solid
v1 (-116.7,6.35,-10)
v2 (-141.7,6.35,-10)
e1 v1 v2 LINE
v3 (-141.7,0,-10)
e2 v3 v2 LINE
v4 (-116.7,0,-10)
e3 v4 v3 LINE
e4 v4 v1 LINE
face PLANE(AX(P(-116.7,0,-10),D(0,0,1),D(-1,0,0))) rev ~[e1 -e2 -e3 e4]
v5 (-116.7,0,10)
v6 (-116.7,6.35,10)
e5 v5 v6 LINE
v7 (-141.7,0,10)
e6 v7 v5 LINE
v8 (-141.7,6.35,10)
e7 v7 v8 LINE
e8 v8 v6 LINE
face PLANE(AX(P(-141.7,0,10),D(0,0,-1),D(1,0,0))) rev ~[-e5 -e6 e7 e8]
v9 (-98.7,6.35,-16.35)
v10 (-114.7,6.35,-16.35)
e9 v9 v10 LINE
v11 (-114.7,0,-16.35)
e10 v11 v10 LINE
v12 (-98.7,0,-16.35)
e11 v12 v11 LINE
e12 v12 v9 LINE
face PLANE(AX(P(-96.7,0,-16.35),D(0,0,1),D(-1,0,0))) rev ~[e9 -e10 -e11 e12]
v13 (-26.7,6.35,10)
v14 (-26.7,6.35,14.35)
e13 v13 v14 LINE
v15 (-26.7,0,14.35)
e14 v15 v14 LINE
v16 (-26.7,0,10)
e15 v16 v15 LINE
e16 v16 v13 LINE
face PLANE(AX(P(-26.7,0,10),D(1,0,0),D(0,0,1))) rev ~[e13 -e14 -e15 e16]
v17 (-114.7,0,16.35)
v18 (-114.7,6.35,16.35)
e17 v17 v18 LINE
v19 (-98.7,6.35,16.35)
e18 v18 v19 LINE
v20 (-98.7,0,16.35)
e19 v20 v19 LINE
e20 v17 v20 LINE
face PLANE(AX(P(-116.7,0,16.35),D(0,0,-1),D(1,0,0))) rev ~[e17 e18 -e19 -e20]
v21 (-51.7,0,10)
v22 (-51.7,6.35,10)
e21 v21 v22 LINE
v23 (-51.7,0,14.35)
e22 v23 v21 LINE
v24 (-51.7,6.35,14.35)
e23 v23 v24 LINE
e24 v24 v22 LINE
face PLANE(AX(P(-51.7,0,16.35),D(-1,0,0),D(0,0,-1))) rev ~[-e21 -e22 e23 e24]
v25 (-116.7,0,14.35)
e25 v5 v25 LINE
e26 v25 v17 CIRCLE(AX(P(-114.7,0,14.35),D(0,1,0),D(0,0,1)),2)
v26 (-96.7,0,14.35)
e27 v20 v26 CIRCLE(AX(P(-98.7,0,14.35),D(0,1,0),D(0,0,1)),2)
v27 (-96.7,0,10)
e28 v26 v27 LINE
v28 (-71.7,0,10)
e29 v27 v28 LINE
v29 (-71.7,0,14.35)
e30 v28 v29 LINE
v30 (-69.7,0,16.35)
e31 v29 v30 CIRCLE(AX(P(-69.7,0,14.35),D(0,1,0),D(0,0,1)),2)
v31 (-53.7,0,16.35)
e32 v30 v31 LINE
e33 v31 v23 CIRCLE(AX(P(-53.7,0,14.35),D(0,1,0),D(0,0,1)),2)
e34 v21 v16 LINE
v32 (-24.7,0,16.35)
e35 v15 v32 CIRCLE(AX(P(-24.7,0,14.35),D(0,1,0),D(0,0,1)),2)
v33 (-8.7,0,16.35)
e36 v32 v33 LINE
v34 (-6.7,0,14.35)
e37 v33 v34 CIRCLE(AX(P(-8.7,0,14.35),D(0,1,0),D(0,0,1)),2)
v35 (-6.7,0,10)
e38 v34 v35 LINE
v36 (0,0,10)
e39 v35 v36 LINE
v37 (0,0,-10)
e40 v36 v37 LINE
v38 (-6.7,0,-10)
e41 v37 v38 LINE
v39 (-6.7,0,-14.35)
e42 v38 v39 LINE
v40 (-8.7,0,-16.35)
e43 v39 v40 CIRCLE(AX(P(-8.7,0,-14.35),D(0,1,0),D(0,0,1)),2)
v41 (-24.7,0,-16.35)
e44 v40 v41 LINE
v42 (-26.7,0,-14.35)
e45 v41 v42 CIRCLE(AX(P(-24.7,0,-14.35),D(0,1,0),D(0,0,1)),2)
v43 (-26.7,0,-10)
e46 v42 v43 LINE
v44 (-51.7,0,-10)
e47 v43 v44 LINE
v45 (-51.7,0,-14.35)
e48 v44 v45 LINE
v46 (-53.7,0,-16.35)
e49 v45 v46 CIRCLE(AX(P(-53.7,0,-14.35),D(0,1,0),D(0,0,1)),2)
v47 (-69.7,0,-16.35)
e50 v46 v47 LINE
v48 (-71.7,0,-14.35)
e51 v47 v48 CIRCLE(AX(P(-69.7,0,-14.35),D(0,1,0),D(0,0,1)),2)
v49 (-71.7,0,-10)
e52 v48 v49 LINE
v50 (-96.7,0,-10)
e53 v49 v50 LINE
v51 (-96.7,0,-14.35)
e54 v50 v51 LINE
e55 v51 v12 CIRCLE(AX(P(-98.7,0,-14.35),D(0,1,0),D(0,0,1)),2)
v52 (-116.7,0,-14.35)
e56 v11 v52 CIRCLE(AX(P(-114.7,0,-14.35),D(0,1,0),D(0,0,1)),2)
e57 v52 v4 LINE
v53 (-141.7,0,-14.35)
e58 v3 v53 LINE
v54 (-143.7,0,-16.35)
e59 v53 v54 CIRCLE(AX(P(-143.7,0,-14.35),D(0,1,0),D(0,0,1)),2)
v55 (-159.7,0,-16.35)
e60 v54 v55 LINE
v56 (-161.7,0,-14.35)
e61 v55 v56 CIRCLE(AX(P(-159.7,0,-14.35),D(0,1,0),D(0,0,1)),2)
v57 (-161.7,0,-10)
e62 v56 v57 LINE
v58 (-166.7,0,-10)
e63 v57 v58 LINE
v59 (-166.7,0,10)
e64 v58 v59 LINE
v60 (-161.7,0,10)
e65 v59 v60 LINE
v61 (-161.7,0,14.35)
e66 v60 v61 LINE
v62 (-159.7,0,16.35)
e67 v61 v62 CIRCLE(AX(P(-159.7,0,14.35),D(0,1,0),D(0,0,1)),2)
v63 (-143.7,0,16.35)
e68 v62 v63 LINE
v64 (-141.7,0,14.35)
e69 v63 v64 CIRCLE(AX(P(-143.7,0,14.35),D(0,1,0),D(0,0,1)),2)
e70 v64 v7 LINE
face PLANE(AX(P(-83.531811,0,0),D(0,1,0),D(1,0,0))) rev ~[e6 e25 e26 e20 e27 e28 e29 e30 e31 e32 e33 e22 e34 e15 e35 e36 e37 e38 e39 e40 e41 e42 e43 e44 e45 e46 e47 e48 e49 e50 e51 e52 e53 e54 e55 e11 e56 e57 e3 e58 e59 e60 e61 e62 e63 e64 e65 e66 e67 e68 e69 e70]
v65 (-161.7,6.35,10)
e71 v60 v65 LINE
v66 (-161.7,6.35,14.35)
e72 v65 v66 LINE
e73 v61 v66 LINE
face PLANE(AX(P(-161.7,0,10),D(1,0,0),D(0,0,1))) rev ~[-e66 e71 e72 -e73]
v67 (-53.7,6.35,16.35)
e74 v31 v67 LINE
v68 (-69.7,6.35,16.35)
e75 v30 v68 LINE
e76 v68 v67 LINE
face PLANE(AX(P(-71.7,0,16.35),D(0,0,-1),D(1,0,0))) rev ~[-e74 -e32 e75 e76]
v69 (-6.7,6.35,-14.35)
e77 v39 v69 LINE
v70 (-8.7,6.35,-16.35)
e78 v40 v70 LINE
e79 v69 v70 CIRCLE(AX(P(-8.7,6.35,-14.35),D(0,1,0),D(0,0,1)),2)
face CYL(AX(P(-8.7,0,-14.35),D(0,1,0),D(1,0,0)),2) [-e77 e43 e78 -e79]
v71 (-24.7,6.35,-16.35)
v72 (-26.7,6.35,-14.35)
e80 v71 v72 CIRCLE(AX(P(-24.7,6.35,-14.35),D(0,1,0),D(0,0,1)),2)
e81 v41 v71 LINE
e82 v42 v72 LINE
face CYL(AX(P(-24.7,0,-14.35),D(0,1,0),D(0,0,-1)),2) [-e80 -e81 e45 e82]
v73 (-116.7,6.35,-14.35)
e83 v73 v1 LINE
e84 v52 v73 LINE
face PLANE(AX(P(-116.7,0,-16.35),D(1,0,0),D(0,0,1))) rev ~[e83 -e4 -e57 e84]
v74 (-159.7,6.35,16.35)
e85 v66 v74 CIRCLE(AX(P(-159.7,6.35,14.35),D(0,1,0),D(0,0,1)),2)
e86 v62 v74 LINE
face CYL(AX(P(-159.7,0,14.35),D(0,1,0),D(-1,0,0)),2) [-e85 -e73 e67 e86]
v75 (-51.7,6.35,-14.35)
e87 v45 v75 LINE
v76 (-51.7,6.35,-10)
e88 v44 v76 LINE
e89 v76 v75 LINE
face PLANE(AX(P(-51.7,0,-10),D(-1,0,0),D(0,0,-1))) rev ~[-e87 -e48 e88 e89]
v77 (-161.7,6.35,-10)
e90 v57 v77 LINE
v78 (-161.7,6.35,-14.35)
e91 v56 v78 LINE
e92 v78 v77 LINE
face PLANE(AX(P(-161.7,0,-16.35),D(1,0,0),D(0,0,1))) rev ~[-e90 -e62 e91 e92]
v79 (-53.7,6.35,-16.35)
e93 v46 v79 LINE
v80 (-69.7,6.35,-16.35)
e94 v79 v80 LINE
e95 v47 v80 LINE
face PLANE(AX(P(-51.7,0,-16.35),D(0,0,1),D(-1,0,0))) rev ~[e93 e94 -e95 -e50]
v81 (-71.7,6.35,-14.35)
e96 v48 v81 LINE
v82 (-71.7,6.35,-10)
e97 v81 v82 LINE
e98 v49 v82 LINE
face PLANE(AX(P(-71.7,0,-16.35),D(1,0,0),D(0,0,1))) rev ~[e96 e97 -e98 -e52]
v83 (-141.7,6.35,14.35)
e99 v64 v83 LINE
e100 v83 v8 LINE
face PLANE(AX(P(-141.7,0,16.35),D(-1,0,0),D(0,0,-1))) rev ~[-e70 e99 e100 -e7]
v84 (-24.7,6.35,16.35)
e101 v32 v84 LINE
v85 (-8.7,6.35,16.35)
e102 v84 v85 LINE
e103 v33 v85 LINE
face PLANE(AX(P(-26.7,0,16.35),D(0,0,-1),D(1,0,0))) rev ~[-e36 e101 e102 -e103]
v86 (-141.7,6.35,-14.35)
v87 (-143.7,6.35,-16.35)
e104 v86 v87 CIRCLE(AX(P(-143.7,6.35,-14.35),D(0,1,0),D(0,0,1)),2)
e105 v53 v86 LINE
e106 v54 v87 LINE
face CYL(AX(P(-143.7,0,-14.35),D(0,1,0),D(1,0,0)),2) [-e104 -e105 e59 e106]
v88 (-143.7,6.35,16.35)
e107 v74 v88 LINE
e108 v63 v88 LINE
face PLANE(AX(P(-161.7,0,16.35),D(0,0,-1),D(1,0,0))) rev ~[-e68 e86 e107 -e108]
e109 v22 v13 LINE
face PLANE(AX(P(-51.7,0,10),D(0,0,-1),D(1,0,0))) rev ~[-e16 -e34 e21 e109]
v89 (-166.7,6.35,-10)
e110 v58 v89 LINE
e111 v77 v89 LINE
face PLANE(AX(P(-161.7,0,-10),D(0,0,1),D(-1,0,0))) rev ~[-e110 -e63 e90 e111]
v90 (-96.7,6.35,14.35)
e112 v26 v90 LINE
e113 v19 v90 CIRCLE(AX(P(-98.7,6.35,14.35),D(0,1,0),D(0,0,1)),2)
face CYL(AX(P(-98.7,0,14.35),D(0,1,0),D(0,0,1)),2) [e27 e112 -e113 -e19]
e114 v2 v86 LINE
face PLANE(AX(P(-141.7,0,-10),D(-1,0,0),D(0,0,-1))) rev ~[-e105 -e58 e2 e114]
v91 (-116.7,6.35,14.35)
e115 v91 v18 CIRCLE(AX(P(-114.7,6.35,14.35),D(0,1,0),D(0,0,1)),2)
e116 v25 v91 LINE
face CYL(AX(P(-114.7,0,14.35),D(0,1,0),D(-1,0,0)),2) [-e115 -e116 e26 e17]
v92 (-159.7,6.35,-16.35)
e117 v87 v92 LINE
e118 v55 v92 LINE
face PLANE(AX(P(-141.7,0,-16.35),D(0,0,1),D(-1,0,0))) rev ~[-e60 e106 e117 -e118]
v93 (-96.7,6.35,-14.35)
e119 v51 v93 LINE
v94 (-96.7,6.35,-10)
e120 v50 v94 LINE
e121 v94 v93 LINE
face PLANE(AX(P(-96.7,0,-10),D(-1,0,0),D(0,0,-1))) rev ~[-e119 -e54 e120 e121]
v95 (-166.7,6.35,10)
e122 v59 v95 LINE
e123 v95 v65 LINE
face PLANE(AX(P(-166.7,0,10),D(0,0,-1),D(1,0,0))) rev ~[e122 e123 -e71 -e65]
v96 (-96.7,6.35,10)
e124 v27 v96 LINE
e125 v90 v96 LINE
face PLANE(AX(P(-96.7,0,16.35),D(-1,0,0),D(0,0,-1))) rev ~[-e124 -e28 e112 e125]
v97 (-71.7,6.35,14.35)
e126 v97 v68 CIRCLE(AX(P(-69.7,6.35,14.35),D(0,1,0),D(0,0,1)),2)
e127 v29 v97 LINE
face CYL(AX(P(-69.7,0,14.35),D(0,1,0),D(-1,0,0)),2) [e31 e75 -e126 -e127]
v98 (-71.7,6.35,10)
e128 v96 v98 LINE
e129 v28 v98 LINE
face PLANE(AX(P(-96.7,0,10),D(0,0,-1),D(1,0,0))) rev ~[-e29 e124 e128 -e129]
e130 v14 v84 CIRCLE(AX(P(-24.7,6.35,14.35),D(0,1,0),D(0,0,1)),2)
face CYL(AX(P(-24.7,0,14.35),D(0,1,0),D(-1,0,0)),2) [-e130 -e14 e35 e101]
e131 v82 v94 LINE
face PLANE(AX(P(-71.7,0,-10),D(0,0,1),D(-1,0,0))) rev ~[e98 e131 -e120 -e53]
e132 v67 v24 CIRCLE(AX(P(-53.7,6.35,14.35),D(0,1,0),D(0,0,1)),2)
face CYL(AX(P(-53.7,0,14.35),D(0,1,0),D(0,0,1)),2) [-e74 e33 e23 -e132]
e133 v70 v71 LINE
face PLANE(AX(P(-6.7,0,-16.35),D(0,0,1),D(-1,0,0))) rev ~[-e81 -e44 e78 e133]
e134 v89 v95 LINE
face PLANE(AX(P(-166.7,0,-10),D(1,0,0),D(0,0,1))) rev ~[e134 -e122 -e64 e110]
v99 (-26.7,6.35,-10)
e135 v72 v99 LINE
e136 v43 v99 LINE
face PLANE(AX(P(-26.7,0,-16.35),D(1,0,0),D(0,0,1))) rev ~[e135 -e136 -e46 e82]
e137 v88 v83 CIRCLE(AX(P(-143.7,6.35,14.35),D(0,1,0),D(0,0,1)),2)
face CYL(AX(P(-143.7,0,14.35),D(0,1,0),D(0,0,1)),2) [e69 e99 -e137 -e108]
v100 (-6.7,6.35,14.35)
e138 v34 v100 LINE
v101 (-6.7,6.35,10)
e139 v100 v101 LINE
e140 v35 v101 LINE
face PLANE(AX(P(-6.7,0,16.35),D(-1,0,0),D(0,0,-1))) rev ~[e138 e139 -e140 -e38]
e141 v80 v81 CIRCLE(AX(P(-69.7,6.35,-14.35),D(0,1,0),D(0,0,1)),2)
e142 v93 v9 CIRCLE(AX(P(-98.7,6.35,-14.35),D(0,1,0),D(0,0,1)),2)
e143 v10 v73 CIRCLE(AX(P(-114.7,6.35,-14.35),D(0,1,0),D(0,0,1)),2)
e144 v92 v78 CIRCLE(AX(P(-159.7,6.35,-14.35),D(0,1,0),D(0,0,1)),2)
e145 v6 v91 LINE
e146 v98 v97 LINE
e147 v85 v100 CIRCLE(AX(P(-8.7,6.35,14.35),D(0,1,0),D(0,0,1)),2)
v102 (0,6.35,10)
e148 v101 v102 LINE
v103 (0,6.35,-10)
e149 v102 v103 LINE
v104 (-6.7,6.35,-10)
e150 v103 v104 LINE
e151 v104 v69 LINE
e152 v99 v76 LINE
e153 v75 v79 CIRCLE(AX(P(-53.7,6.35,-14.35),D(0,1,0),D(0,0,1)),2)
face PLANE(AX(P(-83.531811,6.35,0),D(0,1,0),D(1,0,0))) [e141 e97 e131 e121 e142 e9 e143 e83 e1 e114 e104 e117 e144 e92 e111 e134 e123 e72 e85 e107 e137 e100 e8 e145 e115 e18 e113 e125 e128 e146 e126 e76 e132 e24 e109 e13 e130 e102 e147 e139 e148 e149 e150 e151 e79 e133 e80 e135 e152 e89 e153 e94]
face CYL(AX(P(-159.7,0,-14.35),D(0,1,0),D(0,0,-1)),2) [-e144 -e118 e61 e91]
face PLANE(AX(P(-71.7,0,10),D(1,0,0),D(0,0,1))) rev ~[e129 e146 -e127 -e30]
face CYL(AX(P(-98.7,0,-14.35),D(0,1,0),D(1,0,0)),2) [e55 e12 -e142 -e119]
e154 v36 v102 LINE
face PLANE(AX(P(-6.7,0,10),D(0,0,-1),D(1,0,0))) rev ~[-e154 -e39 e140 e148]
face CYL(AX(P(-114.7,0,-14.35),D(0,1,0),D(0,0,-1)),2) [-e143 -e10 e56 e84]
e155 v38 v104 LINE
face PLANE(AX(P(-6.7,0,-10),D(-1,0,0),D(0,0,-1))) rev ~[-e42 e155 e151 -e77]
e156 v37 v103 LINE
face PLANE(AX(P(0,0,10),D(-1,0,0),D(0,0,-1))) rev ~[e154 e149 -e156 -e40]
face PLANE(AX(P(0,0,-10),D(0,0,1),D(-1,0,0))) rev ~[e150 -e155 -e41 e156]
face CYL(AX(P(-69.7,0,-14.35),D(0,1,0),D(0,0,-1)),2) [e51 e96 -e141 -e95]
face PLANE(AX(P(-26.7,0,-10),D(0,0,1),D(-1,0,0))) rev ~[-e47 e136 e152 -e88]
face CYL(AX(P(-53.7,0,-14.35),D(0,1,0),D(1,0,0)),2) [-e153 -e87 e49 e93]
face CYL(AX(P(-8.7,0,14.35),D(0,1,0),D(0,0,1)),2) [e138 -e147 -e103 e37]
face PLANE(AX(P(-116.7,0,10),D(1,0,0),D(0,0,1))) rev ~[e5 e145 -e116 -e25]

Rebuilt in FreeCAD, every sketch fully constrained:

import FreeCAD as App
import Part
import Sketcher

V = App.Vector


def edges_at(feature, points):
    """Names of the edges that pass closest to the given points."""
    edges = feature.Shape.Edges
    near = lambda p: min(range(len(edges)), key=lambda i: edges[i].distToShape(Part.Vertex(*p))[0])
    return sorted({f"Edge{near(p) + 1}" for p in points})

doc = App.newDocument("Part")
body = doc.addObject("PartDesign::Body", "Body")

# Sketch on XZ plane
sketch1 = body.newObject("Sketcher::SketchObject", "Sketch")
sketch1.AttachmentSupport = (doc.getObject("XZ_Plane"), [""])
sketch1.MapMode = "FlatFace"
sketch1.addGeometry(Part.LineSegment(V(0, -10, 0), V(-7, -10, 0)), False)
sketch1.addGeometry(Part.LineSegment(V(-7, -10, 0), V(-7, -16, 0)), False)
sketch1.addGeometry(Part.LineSegment(V(-7, -16, 0), V(-27, -16, 0)), False)
sketch1.addGeometry(Part.LineSegment(V(-27, -16, 0), V(-27, -10, 0)), False)
sketch1.addGeometry(Part.LineSegment(V(-27, -10, 0), V(-52, -10, 0)), False)
sketch1.addGeometry(Part.LineSegment(V(-52, -10, 0), V(-52, -16, 0)), False)
sketch1.addGeometry(Part.LineSegment(V(-52, -16, 0), V(-72, -16, 0)), False)
sketch1.addGeometry(Part.LineSegment(V(-72, -16, 0), V(-72, -10, 0)), False)
sketch1.addGeometry(Part.LineSegment(V(-72, -10, 0), V(-97, -10, 0)), False)
sketch1.addGeometry(Part.LineSegment(V(-97, -10, 0), V(-97, -16, 0)), False)
sketch1.addGeometry(Part.LineSegment(V(-97, -16, 0), V(-117, -16, 0)), False)
sketch1.addGeometry(Part.LineSegment(V(-117, -16, 0), V(-117, -10, 0)), False)
sketch1.addGeometry(Part.LineSegment(V(-117, -10, 0), V(-142, -10, 0)), False)
sketch1.addGeometry(Part.LineSegment(V(-142, -10, 0), V(-142, -16, 0)), False)
sketch1.addGeometry(Part.LineSegment(V(-142, -16, 0), V(-162, -16, 0)), False)
sketch1.addGeometry(Part.LineSegment(V(-162, -16, 0), V(-162, -10, 0)), False)
sketch1.addGeometry(Part.LineSegment(V(-162, -10, 0), V(-167, -10, 0)), False)
sketch1.addGeometry(Part.LineSegment(V(-167, -10, 0), V(-167, 10, 0)), False)
sketch1.addGeometry(Part.LineSegment(V(-167, 10, 0), V(-162, 10, 0)), False)
sketch1.addGeometry(Part.LineSegment(V(-162, 10, 0), V(-162, 16, 0)), False)
sketch1.addGeometry(Part.LineSegment(V(-162, 16, 0), V(-142, 16, 0)), False)
sketch1.addGeometry(Part.LineSegment(V(-142, 16, 0), V(-142, 10, 0)), False)
sketch1.addGeometry(Part.LineSegment(V(-142, 10, 0), V(-117, 10, 0)), False)
sketch1.addGeometry(Part.LineSegment(V(-117, 10, 0), V(-117, 16, 0)), False)
sketch1.addGeometry(Part.LineSegment(V(-117, 16, 0), V(-97, 16, 0)), False)
sketch1.addGeometry(Part.LineSegment(V(-97, 16, 0), V(-97, 10, 0)), False)
sketch1.addGeometry(Part.LineSegment(V(-97, 10, 0), V(-72, 10, 0)), False)
sketch1.addGeometry(Part.LineSegment(V(-72, 10, 0), V(-72, 16, 0)), False)
sketch1.addGeometry(Part.LineSegment(V(-72, 16, 0), V(-52, 16, 0)), False)
sketch1.addGeometry(Part.LineSegment(V(-52, 16, 0), V(-52, 10, 0)), False)
sketch1.addGeometry(Part.LineSegment(V(-52, 10, 0), V(-27, 10, 0)), False)
sketch1.addGeometry(Part.LineSegment(V(-27, 10, 0), V(-27, 16, 0)), False)
sketch1.addGeometry(Part.LineSegment(V(-27, 16, 0), V(-7, 16, 0)), False)
sketch1.addGeometry(Part.LineSegment(V(-7, 16, 0), V(-7, 10, 0)), False)
sketch1.addGeometry(Part.LineSegment(V(-7, 10, 0), V(0, 10, 0)), False)
sketch1.addGeometry(Part.LineSegment(V(0, 10, 0), V(0, -10, 0)), False)
sketch1.addConstraint(Sketcher.Constraint("Coincident", 0, 2, 1, 1))
sketch1.addConstraint(Sketcher.Constraint("Coincident", 1, 2, 2, 1))
sketch1.addConstraint(Sketcher.Constraint("Coincident", 2, 2, 3, 1))
sketch1.addConstraint(Sketcher.Constraint("Coincident", 3, 2, 4, 1))
sketch1.addConstraint(Sketcher.Constraint("Coincident", 4, 2, 5, 1))
sketch1.addConstraint(Sketcher.Constraint("Coincident", 5, 2, 6, 1))
sketch1.addConstraint(Sketcher.Constraint("Coincident", 6, 2, 7, 1))
sketch1.addConstraint(Sketcher.Constraint("Coincident", 7, 2, 8, 1))
sketch1.addConstraint(Sketcher.Constraint("Coincident", 8, 2, 9, 1))
sketch1.addConstraint(Sketcher.Constraint("Coincident", 9, 2, 10, 1))
sketch1.addConstraint(Sketcher.Constraint("Coincident", 10, 2, 11, 1))
sketch1.addConstraint(Sketcher.Constraint("Coincident", 11, 2, 12, 1))
sketch1.addConstraint(Sketcher.Constraint("Coincident", 12, 2, 13, 1))
sketch1.addConstraint(Sketcher.Constraint("Coincident", 13, 2, 14, 1))
sketch1.addConstraint(Sketcher.Constraint("Coincident", 14, 2, 15, 1))
sketch1.addConstraint(Sketcher.Constraint("Coincident", 15, 2, 16, 1))
sketch1.addConstraint(Sketcher.Constraint("Coincident", 16, 2, 17, 1))
sketch1.addConstraint(Sketcher.Constraint("Coincident", 17, 2, 18, 1))
sketch1.addConstraint(Sketcher.Constraint("Coincident", 18, 2, 19, 1))
sketch1.addConstraint(Sketcher.Constraint("Coincident", 19, 2, 20, 1))
sketch1.addConstraint(Sketcher.Constraint("Coincident", 20, 2, 21, 1))
sketch1.addConstraint(Sketcher.Constraint("Coincident", 21, 2, 22, 1))
sketch1.addConstraint(Sketcher.Constraint("Coincident", 22, 2, 23, 1))
sketch1.addConstraint(Sketcher.Constraint("Coincident", 23, 2, 24, 1))
sketch1.addConstraint(Sketcher.Constraint("Coincident", 24, 2, 25, 1))
sketch1.addConstraint(Sketcher.Constraint("Coincident", 25, 2, 26, 1))
sketch1.addConstraint(Sketcher.Constraint("Coincident", 26, 2, 27, 1))
sketch1.addConstraint(Sketcher.Constraint("Coincident", 27, 2, 28, 1))
sketch1.addConstraint(Sketcher.Constraint("Coincident", 28, 2, 29, 1))
sketch1.addConstraint(Sketcher.Constraint("Coincident", 29, 2, 30, 1))
sketch1.addConstraint(Sketcher.Constraint("Coincident", 30, 2, 31, 1))
sketch1.addConstraint(Sketcher.Constraint("Coincident", 31, 2, 32, 1))
sketch1.addConstraint(Sketcher.Constraint("Coincident", 32, 2, 33, 1))
sketch1.addConstraint(Sketcher.Constraint("Coincident", 33, 2, 34, 1))
sketch1.addConstraint(Sketcher.Constraint("Coincident", 34, 2, 35, 1))
sketch1.addConstraint(Sketcher.Constraint("Coincident", 35, 2, 0, 1))
sketch1.addConstraint(Sketcher.Constraint("Horizontal", 0))
sketch1.addConstraint(Sketcher.Constraint("Vertical", 1))
sketch1.addConstraint(Sketcher.Constraint("Horizontal", 2))
sketch1.addConstraint(Sketcher.Constraint("Vertical", 3))
sketch1.addConstraint(Sketcher.Constraint("Horizontal", 4))
sketch1.addConstraint(Sketcher.Constraint("Vertical", 5))
sketch1.addConstraint(Sketcher.Constraint("Horizontal", 6))
sketch1.addConstraint(Sketcher.Constraint("Vertical", 7))
sketch1.addConstraint(Sketcher.Constraint("Horizontal", 8))
sketch1.addConstraint(Sketcher.Constraint("Vertical", 9))
sketch1.addConstraint(Sketcher.Constraint("Horizontal", 10))
sketch1.addConstraint(Sketcher.Constraint("Vertical", 11))
sketch1.addConstraint(Sketcher.Constraint("Horizontal", 12))
sketch1.addConstraint(Sketcher.Constraint("Vertical", 13))
sketch1.addConstraint(Sketcher.Constraint("Horizontal", 14))
sketch1.addConstraint(Sketcher.Constraint("Vertical", 15))
sketch1.addConstraint(Sketcher.Constraint("Horizontal", 16))
sketch1.addConstraint(Sketcher.Constraint("Vertical", 17))
sketch1.addConstraint(Sketcher.Constraint("Horizontal", 18))
sketch1.addConstraint(Sketcher.Constraint("Vertical", 19))
sketch1.addConstraint(Sketcher.Constraint("Horizontal", 20))
sketch1.addConstraint(Sketcher.Constraint("Vertical", 21))
sketch1.addConstraint(Sketcher.Constraint("Horizontal", 22))
sketch1.addConstraint(Sketcher.Constraint("Vertical", 23))
sketch1.addConstraint(Sketcher.Constraint("Horizontal", 24))
sketch1.addConstraint(Sketcher.Constraint("Vertical", 25))
sketch1.addConstraint(Sketcher.Constraint("Horizontal", 26))
sketch1.addConstraint(Sketcher.Constraint("Vertical", 27))
sketch1.addConstraint(Sketcher.Constraint("Horizontal", 28))
sketch1.addConstraint(Sketcher.Constraint("Vertical", 29))
sketch1.addConstraint(Sketcher.Constraint("Horizontal", 30))
sketch1.addConstraint(Sketcher.Constraint("Vertical", 31))
sketch1.addConstraint(Sketcher.Constraint("Horizontal", 32))
sketch1.addConstraint(Sketcher.Constraint("Vertical", 33))
sketch1.addConstraint(Sketcher.Constraint("Horizontal", 34))
sketch1.addConstraint(Sketcher.Constraint("Vertical", 35))
sketch1.addConstraint(Sketcher.Constraint("Symmetric", 34, 2, 35, 2, -1, 1))
sketch1.addConstraint(Sketcher.Constraint("Symmetric", 15, 2, 18, 2, -1))
sketch1.addConstraint(Sketcher.Constraint("Symmetric", 13, 2, 20, 2, -1))
sketch1.addConstraint(Sketcher.Constraint("Symmetric", 11, 2, 22, 2, -1))
sketch1.addConstraint(Sketcher.Constraint("Symmetric", 9, 2, 24, 2, -1))
sketch1.addConstraint(Sketcher.Constraint("Symmetric", 7, 2, 26, 2, -1))
sketch1.addConstraint(Sketcher.Constraint("Symmetric", 5, 2, 28, 2, -1))
sketch1.addConstraint(Sketcher.Constraint("Symmetric", 3, 2, 30, 2, -1))
sketch1.addConstraint(Sketcher.Constraint("Symmetric", 1, 2, 32, 2, -1))
sketch1.addConstraint(Sketcher.Constraint("Horizontal", 0, 2, 3, 2))
sketch1.addConstraint(Sketcher.Constraint("Horizontal", 2, 2, 5, 2))
sketch1.addConstraint(Sketcher.Constraint("Horizontal", 4, 2, 7, 2))
sketch1.addConstraint(Sketcher.Constraint("Horizontal", 6, 2, 9, 2))
sketch1.addConstraint(Sketcher.Constraint("Horizontal", 8, 2, 11, 2))
sketch1.addConstraint(Sketcher.Constraint("Horizontal", 10, 2, 13, 2))
sketch1.addConstraint(Sketcher.Constraint("Horizontal", 12, 2, 15, 2))
sketch1.addConstraint(Sketcher.Constraint("Equal", 2, 6))
sketch1.addConstraint(Sketcher.Constraint("Equal", 4, 8))
sketch1.addConstraint(Sketcher.Constraint("Equal", 6, 10))
sketch1.addConstraint(Sketcher.Constraint("Equal", 8, 12))
sketch1.addConstraint(Sketcher.Constraint("Equal", 10, 14))
sketch1.addConstraint(Sketcher.Constraint("Equal", 32, 17))
sketch1.addConstraint(Sketcher.Constraint("DistanceX", 2, 2, 2, 1, 20.0))
sketch1.addConstraint(Sketcher.Constraint("DistanceX", 4, 2, 4, 1, 25.0))
sketch1.addConstraint(Sketcher.Constraint("DistanceX", 16, 2, 16, 1, 5.0))
sketch1.addConstraint(Sketcher.Constraint("DistanceX", 0, 2, 0, 1, 6.7))
sketch1.addConstraint(Sketcher.Constraint("DistanceY", 1, 2, 1, 1, 6.35))
pad1 = body.newObject("PartDesign::Pad", "Pad")
pad1.Profile = sketch1
pad1.Length = 6.35
pad1.Reversed = True
doc.recompute()

fillet = body.newObject("PartDesign::Fillet", "Fillet")
fillet.Base = (pad1, edges_at(pad1, [
    (-6.7, 3.175, 16.35),
    (-26.7, 3.175, 16.35),
    (-51.7, 3.175, 16.35),
    (-71.7, 3.175, 16.35),
    (-96.7, 3.175, 16.35),
    (-116.7, 3.175, 16.35),
    (-141.7, 3.175, 16.35),
    (-161.7, 3.175, 16.35),
    (-161.7, 3.175, -16.35),
    (-141.7, 3.175, -16.35),
    (-116.7, 3.175, -16.35),
    (-96.7, 3.175, -16.35),
    (-71.7, 3.175, -16.35),
    (-51.7, 3.175, -16.35),
    (-26.7, 3.175, -16.35),
    (-6.7, 3.175, -16.35),
]))
fillet.Radius = 2

doc.recompute()
